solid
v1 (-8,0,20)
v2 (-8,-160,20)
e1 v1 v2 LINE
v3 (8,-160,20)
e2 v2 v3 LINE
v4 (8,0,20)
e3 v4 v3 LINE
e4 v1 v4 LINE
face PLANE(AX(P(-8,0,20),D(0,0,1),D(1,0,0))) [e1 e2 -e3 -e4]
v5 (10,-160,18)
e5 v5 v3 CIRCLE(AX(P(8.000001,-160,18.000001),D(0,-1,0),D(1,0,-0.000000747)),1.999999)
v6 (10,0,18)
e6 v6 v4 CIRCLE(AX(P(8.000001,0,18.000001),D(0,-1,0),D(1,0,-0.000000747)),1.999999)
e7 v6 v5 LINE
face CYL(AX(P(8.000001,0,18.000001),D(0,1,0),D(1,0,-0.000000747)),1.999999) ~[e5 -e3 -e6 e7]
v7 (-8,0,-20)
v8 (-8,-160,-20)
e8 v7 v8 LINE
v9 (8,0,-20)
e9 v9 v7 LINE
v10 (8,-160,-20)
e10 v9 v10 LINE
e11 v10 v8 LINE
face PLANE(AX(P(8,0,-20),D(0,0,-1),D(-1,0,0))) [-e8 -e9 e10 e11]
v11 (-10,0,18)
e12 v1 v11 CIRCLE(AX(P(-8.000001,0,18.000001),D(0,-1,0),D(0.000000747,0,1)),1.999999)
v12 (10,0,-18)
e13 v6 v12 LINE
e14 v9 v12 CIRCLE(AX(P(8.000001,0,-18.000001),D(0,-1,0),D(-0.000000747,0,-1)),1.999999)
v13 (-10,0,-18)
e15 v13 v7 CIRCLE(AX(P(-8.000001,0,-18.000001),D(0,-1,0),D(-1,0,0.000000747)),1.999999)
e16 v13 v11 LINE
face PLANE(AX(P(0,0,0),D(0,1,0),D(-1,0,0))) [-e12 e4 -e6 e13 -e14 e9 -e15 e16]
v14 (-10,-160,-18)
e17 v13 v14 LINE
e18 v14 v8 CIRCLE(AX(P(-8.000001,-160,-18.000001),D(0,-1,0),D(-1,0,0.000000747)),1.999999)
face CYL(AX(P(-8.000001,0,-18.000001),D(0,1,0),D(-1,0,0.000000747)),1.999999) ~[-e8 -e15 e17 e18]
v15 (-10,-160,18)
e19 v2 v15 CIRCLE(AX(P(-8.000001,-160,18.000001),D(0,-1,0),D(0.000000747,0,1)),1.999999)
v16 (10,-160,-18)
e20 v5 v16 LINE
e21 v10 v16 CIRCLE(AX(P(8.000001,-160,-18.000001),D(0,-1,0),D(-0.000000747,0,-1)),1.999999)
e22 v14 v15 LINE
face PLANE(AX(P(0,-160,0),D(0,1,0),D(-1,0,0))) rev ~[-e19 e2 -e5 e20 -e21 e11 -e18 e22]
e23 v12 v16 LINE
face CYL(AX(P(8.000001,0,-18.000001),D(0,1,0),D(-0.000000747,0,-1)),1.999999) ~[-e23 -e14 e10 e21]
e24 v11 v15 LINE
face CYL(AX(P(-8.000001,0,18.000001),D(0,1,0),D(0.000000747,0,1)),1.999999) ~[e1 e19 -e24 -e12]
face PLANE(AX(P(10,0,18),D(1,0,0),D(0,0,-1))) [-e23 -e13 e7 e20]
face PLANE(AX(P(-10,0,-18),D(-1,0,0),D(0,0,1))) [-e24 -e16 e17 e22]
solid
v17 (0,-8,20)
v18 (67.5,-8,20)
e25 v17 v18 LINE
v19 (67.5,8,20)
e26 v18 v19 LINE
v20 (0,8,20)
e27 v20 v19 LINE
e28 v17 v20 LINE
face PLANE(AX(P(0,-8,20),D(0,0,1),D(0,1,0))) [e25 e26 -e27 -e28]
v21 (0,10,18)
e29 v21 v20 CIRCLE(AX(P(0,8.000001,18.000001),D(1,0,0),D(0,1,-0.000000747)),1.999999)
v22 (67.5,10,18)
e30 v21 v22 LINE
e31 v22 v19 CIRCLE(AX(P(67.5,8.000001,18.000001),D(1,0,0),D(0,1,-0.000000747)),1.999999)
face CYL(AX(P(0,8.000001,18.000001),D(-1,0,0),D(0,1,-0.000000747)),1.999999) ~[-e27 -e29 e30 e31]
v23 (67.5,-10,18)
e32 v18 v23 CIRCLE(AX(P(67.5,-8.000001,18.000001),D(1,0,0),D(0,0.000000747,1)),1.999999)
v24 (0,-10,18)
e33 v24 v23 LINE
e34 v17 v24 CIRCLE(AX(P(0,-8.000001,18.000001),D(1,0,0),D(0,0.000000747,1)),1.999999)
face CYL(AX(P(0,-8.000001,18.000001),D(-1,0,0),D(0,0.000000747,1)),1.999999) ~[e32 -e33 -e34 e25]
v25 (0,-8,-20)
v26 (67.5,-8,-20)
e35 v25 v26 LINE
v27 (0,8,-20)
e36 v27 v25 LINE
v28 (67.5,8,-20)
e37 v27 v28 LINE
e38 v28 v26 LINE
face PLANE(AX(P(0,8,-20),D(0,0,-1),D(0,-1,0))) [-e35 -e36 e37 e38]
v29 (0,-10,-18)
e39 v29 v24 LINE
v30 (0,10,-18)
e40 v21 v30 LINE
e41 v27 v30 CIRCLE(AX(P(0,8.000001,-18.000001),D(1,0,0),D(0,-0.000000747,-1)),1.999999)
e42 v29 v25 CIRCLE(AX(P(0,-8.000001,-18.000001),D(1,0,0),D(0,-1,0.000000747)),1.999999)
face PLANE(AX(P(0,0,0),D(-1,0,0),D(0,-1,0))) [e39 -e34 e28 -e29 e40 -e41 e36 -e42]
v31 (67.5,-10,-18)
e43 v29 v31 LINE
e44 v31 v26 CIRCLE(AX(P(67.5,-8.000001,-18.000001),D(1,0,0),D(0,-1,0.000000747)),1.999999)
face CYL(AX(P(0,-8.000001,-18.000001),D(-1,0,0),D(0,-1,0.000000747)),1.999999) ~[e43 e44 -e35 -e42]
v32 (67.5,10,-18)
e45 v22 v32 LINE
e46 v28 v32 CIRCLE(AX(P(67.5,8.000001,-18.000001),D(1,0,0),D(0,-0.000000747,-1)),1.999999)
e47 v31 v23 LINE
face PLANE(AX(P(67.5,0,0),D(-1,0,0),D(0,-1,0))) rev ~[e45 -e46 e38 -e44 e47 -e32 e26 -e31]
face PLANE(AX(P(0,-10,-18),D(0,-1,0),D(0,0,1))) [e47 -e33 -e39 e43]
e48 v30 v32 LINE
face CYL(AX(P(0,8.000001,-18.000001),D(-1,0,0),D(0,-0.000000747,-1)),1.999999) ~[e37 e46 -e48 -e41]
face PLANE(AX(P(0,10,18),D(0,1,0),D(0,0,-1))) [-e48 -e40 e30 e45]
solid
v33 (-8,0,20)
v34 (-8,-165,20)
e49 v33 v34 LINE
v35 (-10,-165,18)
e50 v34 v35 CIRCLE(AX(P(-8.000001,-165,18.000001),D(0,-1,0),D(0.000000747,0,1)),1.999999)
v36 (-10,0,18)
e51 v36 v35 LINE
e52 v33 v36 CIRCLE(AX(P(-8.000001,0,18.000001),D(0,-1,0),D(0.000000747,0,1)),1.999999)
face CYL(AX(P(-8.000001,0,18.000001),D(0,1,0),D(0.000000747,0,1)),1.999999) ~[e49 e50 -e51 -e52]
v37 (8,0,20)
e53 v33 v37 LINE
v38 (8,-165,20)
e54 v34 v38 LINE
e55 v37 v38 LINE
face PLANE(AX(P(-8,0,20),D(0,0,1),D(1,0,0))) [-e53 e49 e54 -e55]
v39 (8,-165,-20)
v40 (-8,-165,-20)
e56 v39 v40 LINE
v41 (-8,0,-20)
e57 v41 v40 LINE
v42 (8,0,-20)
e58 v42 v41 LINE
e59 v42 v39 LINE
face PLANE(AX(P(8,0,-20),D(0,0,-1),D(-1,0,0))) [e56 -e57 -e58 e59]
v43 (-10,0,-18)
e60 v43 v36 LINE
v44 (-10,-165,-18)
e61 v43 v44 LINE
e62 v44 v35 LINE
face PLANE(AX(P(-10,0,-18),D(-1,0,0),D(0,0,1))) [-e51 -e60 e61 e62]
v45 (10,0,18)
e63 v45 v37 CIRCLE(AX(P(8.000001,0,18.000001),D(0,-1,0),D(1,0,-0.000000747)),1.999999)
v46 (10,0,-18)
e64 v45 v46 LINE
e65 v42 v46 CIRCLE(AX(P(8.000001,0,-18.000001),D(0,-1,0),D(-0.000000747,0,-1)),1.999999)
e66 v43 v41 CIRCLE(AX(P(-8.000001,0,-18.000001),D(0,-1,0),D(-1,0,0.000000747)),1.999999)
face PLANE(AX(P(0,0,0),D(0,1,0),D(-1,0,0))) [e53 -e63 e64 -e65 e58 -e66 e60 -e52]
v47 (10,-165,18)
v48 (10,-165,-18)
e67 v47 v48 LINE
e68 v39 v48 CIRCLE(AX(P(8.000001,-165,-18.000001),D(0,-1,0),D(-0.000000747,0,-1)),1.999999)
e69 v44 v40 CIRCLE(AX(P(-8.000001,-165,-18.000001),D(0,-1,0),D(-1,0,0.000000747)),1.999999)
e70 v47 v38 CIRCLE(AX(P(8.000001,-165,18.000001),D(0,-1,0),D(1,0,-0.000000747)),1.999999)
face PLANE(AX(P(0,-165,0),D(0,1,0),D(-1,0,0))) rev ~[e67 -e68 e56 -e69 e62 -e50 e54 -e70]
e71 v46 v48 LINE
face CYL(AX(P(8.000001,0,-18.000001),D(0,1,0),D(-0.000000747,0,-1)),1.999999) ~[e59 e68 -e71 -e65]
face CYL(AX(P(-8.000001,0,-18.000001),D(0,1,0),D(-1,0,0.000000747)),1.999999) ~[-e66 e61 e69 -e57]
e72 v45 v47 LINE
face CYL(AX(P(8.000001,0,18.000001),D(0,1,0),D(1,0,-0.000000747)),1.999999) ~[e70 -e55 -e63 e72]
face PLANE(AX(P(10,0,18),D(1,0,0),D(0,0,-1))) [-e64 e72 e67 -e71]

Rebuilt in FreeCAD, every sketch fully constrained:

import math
import FreeCAD as App
import Part
import Sketcher
from FreeCAD import Vector

doc = App.newDocument("Part")
params = doc.addObject("Spreadsheet::Sheet", "Params")
for row, (alias, value) in enumerate([
    ("sketch1_radius", "1.999999 mm"),
    ("sketch1_width", "16 mm"),
    ("sketch1_height", "36 mm"),
    ("pad1_length", "67.5 mm"),
    ("sketch2_radius", "1.999999 mm"),
    ("sketch2_width", "16 mm"),
    ("sketch2_height", "36 mm"),
    ("pad2_length", "165 mm"),
    ("sketch3_radius", "1.999999 mm"),
    ("sketch3_width", "16 mm"),
    ("sketch3_height", "36 mm"),
    ("pad3_length", "160 mm"),
], start=1):
    params.set(f"A{row}", alias)
    params.set(f"B{row}", "=" + value)
    params.setAlias(f"B{row}", alias)

body = doc.addObject("PartDesign::Body", "Body")

sketch1 = doc.addObject("Sketcher::SketchObject", "Sketch")
body.addObject(sketch1)
sketch1.AttachmentSupport = (doc.YZ_Plane, [""])
sketch1.MapMode = "FlatFace"
sketch1.addGeometry(Part.LineSegment(Vector(8, 20, 0), Vector(-8, 20, 0)), False)
sketch1.addGeometry(Part.ArcOfCircle(Part.Circle(Vector(-8, 18, 0), Vector(0, 0, 1), 2), math.radians(90), math.radians(180)), False)
sketch1.addGeometry(Part.LineSegment(Vector(-10, 18, 0), Vector(-10, -18, 0)), False)
sketch1.addGeometry(Part.ArcOfCircle(Part.Circle(Vector(-8, -18, 0), Vector(0, 0, 1), 2), math.radians(180), math.radians(270)), False)
sketch1.addGeometry(Part.LineSegment(Vector(-8, -20, 0), Vector(8, -20, 0)), False)
sketch1.addGeometry(Part.ArcOfCircle(Part.Circle(Vector(8, -18, 0), Vector(0, 0, 1), 2), math.radians(-90), math.radians(0)), False)
sketch1.addGeometry(Part.LineSegment(Vector(10, -18, 0), Vector(10, 18, 0)), False)
sketch1.addGeometry(Part.ArcOfCircle(Part.Circle(Vector(8, 18, 0), Vector(0, 0, 1), 2), math.radians(0), math.radians(90)), False)
sketch1.addConstraint(Sketcher.Constraint("Tangent", 0, 2, 1, 1))
sketch1.addConstraint(Sketcher.Constraint("Tangent", 1, 2, 2, 1))
sketch1.addConstraint(Sketcher.Constraint("Tangent", 2, 2, 3, 1))
sketch1.addConstraint(Sketcher.Constraint("Tangent", 3, 2, 4, 1))
sketch1.addConstraint(Sketcher.Constraint("Tangent", 4, 2, 5, 1))
sketch1.addConstraint(Sketcher.Constraint("Tangent", 5, 2, 6, 1))
sketch1.addConstraint(Sketcher.Constraint("Tangent", 6, 2, 7, 1))
sketch1.addConstraint(Sketcher.Constraint("Tangent", 7, 2, 0, 1))
sketch1.addConstraint(Sketcher.Constraint("Horizontal", 0))
sketch1.addConstraint(Sketcher.Constraint("Vertical", 2))
sketch1.addConstraint(Sketcher.Constraint("Horizontal", 4))
sketch1.addConstraint(Sketcher.Constraint("Vertical", 6))
sketch1.addConstraint(Sketcher.Constraint("Equal", 1, 3))
sketch1.addConstraint(Sketcher.Constraint("Equal", 3, 5))
sketch1.addConstraint(Sketcher.Constraint("Equal", 5, 7))
sketch1.addConstraint(Sketcher.Constraint("Symmetric", 1, 3, 5, 3, -1, 1))
sketch1.addConstraint(Sketcher.Constraint("Radius", 1, 1.999999))
sketch1.addConstraint(Sketcher.Constraint("DistanceX", 0, 2, 0, 1, 16.0))
sketch1.addConstraint(Sketcher.Constraint("DistanceY", 2, 2, 2, 1, 36.0))
sketch1.setExpression("Constraints[16]", "Params.sketch1_radius")
sketch1.setExpression("Constraints[17]", "Params.sketch1_width")
sketch1.setExpression("Constraints[18]", "Params.sketch1_height")
pad1 = doc.addObject("PartDesign::Pad", "Pad")
body.addObject(pad1)
pad1.Profile = sketch1
pad1.setExpression("Length", "Params.pad1_length")
body2 = doc.addObject("PartDesign::Body", "Body001")

sketch2 = doc.addObject("Sketcher::SketchObject", "Sketch001")
body2.addObject(sketch2)
sketch2.AttachmentSupport = (doc.getObject("XZ_Plane001"), [""])
sketch2.MapMode = "FlatFace"
sketch2.addGeometry(Part.LineSegment(Vector(8, 20, 0), Vector(-8, 20, 0)), False)
sketch2.addGeometry(Part.ArcOfCircle(Part.Circle(Vector(-8, 18, 0), Vector(0, 0, 1), 2), math.radians(90), math.radians(180)), False)
sketch2.addGeometry(Part.LineSegment(Vector(-10, 18, 0), Vector(-10, -18, 0)), False)
sketch2.addGeometry(Part.ArcOfCircle(Part.Circle(Vector(-8, -18, 0), Vector(0, 0, 1), 2), math.radians(180), math.radians(270)), False)
sketch2.addGeometry(Part.LineSegment(Vector(-8, -20, 0), Vector(8, -20, 0)), False)
sketch2.addGeometry(Part.ArcOfCircle(Part.Circle(Vector(8, -18, 0), Vector(0, 0, 1), 2), math.radians(-90), math.radians(0)), False)
sketch2.addGeometry(Part.LineSegment(Vector(10, -18, 0), Vector(10, 18, 0)), False)
sketch2.addGeometry(Part.ArcOfCircle(Part.Circle(Vector(8, 18, 0), Vector(0, 0, 1), 2), math.radians(0), math.radians(90)), False)
sketch2.addConstraint(Sketcher.Constraint("Tangent", 0, 2, 1, 1))
sketch2.addConstraint(Sketcher.Constraint("Tangent", 1, 2, 2, 1))
sketch2.addConstraint(Sketcher.Constraint("Tangent", 2, 2, 3, 1))
sketch2.addConstraint(Sketcher.Constraint("Tangent", 3, 2, 4, 1))
sketch2.addConstraint(Sketcher.Constraint("Tangent", 4, 2, 5, 1))
sketch2.addConstraint(Sketcher.Constraint("Tangent", 5, 2, 6, 1))
sketch2.addConstraint(Sketcher.Constraint("Tangent", 6, 2, 7, 1))
sketch2.addConstraint(Sketcher.Constraint("Tangent", 7, 2, 0, 1))
sketch2.addConstraint(Sketcher.Constraint("Horizontal", 0))
sketch2.addConstraint(Sketcher.Constraint("Vertical", 2))
sketch2.addConstraint(Sketcher.Constraint("Horizontal", 4))
sketch2.addConstraint(Sketcher.Constraint("Vertical", 6))
sketch2.addConstraint(Sketcher.Constraint("Equal", 1, 3))
sketch2.addConstraint(Sketcher.Constraint("Equal", 3, 5))
sketch2.addConstraint(Sketcher.Constraint("Equal", 5, 7))
sketch2.addConstraint(Sketcher.Constraint("Symmetric", 1, 3, 5, 3, -1, 1))
sketch2.addConstraint(Sketcher.Constraint("Radius", 1, 1.999999))
sketch2.addConstraint(Sketcher.Constraint("DistanceX", 0, 2, 0, 1, 16.0))
sketch2.addConstraint(Sketcher.Constraint("DistanceY", 2, 2, 2, 1, 36.0))
sketch2.setExpression("Constraints[16]", "Params.sketch2_radius")
sketch2.setExpression("Constraints[17]", "Params.sketch2_width")
sketch2.setExpression("Constraints[18]", "Params.sketch2_height")
pad2 = doc.addObject("PartDesign::Pad", "Pad001")
body2.addObject(pad2)
pad2.Profile = sketch2
pad2.setExpression("Length", "Params.pad2_length")
body3 = doc.addObject("PartDesign::Body", "Body002")

sketch3 = doc.addObject("Sketcher::SketchObject", "Sketch002")
body3.addObject(sketch3)
sketch3.AttachmentSupport = (doc.getObject("XZ_Plane002"), [""])
sketch3.MapMode = "FlatFace"
sketch3.addGeometry(Part.LineSegment(Vector(8, 20, 0), Vector(-8, 20, 0)), False)
sketch3.addGeometry(Part.ArcOfCircle(Part.Circle(Vector(-8, 18, 0), Vector(0, 0, 1), 2), math.radians(90), math.radians(180)), False)
sketch3.addGeometry(Part.LineSegment(Vector(-10, 18, 0), Vector(-10, -18, 0)), False)
sketch3.addGeometry(Part.ArcOfCircle(Part.Circle(Vector(-8, -18, 0), Vector(0, 0, 1), 2), math.radians(180), math.radians(270)), False)
sketch3.addGeometry(Part.LineSegment(Vector(-8, -20, 0), Vector(8, -20, 0)), False)
sketch3.addGeometry(Part.ArcOfCircle(Part.Circle(Vector(8, -18, 0), Vector(0, 0, 1), 2), math.radians(-90), math.radians(0)), False)
sketch3.addGeometry(Part.LineSegment(Vector(10, -18, 0), Vector(10, 18, 0)), False)
sketch3.addGeometry(Part.ArcOfCircle(Part.Circle(Vector(8, 18, 0), Vector(0, 0, 1), 2), math.radians(0), math.radians(90)), False)
sketch3.addConstraint(Sketcher.Constraint("Tangent", 0, 2, 1, 1))
sketch3.addConstraint(Sketcher.Constraint("Tangent", 1, 2, 2, 1))
sketch3.addConstraint(Sketcher.Constraint("Tangent", 2, 2, 3, 1))
sketch3.addConstraint(Sketcher.Constraint("Tangent", 3, 2, 4, 1))
sketch3.addConstraint(Sketcher.Constraint("Tangent", 4, 2, 5, 1))
sketch3.addConstraint(Sketcher.Constraint("Tangent", 5, 2, 6, 1))
sketch3.addConstraint(Sketcher.Constraint("Tangent", 6, 2, 7, 1))
sketch3.addConstraint(Sketcher.Constraint("Tangent", 7, 2, 0, 1))
sketch3.addConstraint(Sketcher.Constraint("Horizontal", 0))
sketch3.addConstraint(Sketcher.Constraint("Vertical", 2))
sketch3.addConstraint(Sketcher.Constraint("Horizontal", 4))
sketch3.addConstraint(Sketcher.Constraint("Vertical", 6))
sketch3.addConstraint(Sketcher.Constraint("Equal", 1, 3))
sketch3.addConstraint(Sketcher.Constraint("Equal", 3, 5))
sketch3.addConstraint(Sketcher.Constraint("Equal", 5, 7))
sketch3.addConstraint(Sketcher.Constraint("Symmetric", 1, 3, 5, 3, -1, 1))
sketch3.addConstraint(Sketcher.Constraint("Radius", 1, 1.999999))
sketch3.addConstraint(Sketcher.Constraint("DistanceX", 0, 2, 0, 1, 16.0))
sketch3.addConstraint(Sketcher.Constraint("DistanceY", 2, 2, 2, 1, 36.0))
sketch3.setExpression("Constraints[16]", "Params.sketch3_radius")
sketch3.setExpression("Constraints[17]", "Params.sketch3_width")
sketch3.setExpression("Constraints[18]", "Params.sketch3_height")
pad3 = doc.addObject("PartDesign::Pad", "Pad002")
body3.addObject(pad3)
pad3.Profile = sketch3
pad3.setExpression("Length", "Params.pad3_length")

doc.recompute()
